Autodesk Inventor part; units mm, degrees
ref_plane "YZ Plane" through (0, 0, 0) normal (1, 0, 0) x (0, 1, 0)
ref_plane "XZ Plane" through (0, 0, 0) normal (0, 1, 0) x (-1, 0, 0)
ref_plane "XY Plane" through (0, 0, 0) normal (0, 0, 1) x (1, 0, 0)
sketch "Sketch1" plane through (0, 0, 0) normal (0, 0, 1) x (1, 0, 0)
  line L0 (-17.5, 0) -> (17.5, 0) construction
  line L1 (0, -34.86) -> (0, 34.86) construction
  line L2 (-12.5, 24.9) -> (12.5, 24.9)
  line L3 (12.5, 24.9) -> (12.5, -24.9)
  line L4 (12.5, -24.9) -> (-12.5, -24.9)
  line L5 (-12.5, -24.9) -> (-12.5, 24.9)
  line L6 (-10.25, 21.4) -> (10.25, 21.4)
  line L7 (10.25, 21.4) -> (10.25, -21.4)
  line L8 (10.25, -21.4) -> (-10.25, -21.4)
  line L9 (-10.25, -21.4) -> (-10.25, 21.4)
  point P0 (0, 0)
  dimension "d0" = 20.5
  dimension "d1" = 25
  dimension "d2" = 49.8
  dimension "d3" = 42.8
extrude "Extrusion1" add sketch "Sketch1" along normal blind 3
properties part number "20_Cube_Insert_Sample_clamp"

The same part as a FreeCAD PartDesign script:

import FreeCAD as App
import Part
import Sketcher

V = App.Vector
Q = App.Units.Quantity

doc = App.newDocument("Part")
params = doc.addObject("Spreadsheet::Sheet", "Params")
for row, (alias, value) in enumerate([
    ("sketch1_width", "25 mm"),
    ("sketch1_width2", "20.5 mm"),
    ("sketch1_height", "49.8 mm"),
    ("sketch1_height2", "42.8 mm"),
    ("pad1_length", "3 mm"),
], start=1):
    params.set(f"A{row}", alias)
    params.set(f"B{row}", "=" + value)
    params.setAlias(f"B{row}", alias)

body = doc.addObject("PartDesign::Body", "Body")

sketch1 = body.newObject("Sketcher::SketchObject", "Sketch")
sketch1.AttachmentSupport = (doc.getObject("XY_Plane"), [""])
sketch1.MapMode = "FlatFace"
sketch1.addGeometry([
    Part.LineSegment(V(12, 25, 0), V(-12, 25, 0)),
    Part.LineSegment(V(-12, 25, 0), V(-12, -25, 0)),
    Part.LineSegment(V(-12, -25, 0), V(12, -25, 0)),
    Part.LineSegment(V(12, -25, 0), V(12, 25, 0)),
    Part.LineSegment(V(-10, -21, 0), V(-10, 21, 0)),
    Part.LineSegment(V(-10, 21, 0), V(10, 21, 0)),
    Part.LineSegment(V(10, 21, 0), V(10, -21, 0)),
    Part.LineSegment(V(10, -21, 0), V(-10, -21, 0)),
], False)
sketch1.addConstraint([
    Sketcher.Constraint("Coincident", 0, 2, 1, 1),
    Sketcher.Constraint("Coincident", 1, 2, 2, 1),
    Sketcher.Constraint("Coincident", 2, 2, 3, 1),
    Sketcher.Constraint("Coincident", 3, 2, 0, 1),
    Sketcher.Constraint("Coincident", 4, 2, 5, 1),
    Sketcher.Constraint("Coincident", 5, 2, 6, 1),
    Sketcher.Constraint("Coincident", 6, 2, 7, 1),
    Sketcher.Constraint("Coincident", 7, 2, 4, 1),
    Sketcher.Constraint("Horizontal", 0),
    Sketcher.Constraint("Vertical", 1),
    Sketcher.Constraint("Horizontal", 2),
    Sketcher.Constraint("Vertical", 3),
    Sketcher.Constraint("Vertical", 4),
    Sketcher.Constraint("Horizontal", 5),
    Sketcher.Constraint("Vertical", 6),
    Sketcher.Constraint("Horizontal", 7),
    Sketcher.Constraint("Symmetric", 0, 2, 2, 2, -1, 1),
    Sketcher.Constraint("Symmetric", 4, 2, 6, 2, -1, 1),
    Sketcher.Constraint("DistanceX", 0, 2, 0, 1, Q("25 mm")),
    Sketcher.Constraint("DistanceX", 5, 1, 5, 2, Q("20.5 mm")),
    Sketcher.Constraint("DistanceY", 1, 2, 1, 1, Q("49.8 mm")),
    Sketcher.Constraint("DistanceY", 4, 1, 4, 2, Q("42.8 mm")),
])
sketch1.setExpression("Constraints[18]", "Params.sketch1_width")
sketch1.setExpression("Constraints[19]", "Params.sketch1_width2")
sketch1.setExpression("Constraints[20]", "Params.sketch1_height")
sketch1.setExpression("Constraints[21]", "Params.sketch1_height2")
pad1 = body.newObject("PartDesign::Pad", "Pad")
pad1.Profile = sketch1
pad1.setExpression("Length", "Params.pad1_length")

doc.recompute()
